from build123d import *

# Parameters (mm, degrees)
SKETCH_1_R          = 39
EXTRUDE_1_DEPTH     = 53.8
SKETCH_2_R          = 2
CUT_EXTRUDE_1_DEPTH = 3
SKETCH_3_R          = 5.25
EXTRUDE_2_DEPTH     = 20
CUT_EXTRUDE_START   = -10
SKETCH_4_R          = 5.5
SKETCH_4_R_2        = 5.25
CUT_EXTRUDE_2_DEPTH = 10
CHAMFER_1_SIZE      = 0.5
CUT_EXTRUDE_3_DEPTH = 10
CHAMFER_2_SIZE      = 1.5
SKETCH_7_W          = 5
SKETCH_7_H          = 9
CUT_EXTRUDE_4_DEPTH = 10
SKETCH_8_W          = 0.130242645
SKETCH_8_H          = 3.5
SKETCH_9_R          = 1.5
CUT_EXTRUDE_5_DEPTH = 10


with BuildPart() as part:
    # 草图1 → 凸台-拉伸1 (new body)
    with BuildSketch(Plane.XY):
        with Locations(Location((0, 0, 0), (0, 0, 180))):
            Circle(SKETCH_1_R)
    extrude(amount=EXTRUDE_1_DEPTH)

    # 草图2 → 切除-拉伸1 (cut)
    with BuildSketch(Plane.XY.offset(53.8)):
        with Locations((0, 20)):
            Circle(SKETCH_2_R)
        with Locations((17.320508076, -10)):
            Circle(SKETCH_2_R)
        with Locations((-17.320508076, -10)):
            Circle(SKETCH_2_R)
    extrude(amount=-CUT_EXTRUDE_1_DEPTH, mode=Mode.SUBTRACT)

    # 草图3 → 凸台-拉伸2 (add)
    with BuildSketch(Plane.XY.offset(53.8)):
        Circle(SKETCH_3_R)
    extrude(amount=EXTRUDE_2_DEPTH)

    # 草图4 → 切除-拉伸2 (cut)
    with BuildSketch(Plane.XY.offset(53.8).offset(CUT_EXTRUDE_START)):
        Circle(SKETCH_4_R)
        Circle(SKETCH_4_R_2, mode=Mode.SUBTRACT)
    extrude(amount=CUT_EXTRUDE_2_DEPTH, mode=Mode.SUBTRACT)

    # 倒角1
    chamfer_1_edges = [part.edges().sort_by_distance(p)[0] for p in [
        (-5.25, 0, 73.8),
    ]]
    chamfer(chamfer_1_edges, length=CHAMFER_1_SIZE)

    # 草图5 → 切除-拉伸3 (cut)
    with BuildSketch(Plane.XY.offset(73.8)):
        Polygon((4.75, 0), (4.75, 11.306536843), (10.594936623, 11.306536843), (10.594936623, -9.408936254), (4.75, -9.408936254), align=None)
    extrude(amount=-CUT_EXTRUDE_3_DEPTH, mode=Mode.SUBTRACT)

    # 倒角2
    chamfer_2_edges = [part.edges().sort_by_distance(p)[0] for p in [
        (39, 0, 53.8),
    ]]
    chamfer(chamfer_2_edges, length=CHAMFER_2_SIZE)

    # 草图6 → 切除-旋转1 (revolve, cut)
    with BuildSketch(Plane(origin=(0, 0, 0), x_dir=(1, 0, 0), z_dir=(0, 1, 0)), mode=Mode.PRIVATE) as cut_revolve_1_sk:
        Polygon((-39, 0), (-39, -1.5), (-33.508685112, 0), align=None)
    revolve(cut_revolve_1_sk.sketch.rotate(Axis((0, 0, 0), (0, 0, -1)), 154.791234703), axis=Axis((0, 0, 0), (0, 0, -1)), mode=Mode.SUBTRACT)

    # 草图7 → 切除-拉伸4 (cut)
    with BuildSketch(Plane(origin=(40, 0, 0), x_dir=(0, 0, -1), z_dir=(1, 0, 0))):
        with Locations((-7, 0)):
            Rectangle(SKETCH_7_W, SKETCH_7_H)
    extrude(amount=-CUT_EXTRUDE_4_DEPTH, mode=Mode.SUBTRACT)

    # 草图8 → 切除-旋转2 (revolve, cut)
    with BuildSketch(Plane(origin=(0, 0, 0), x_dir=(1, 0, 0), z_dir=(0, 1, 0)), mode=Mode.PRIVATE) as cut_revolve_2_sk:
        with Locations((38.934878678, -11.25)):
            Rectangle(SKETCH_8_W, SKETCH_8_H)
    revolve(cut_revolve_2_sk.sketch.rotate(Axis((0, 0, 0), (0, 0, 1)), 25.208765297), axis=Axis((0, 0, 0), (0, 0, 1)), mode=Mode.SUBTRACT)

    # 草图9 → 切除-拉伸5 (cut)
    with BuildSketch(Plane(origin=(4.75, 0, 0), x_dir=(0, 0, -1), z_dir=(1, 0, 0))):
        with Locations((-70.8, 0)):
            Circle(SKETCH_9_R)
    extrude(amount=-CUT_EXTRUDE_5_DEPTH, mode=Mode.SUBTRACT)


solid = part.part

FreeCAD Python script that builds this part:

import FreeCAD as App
import Part
import Sketcher


def edges_at(feature, points):
    """Names of the edges that pass closest to the given points."""
    edges = feature.Shape.Edges
    near = lambda p: min(range(len(edges)), key=lambda i: edges[i].distToShape(Part.Vertex(*p))[0])
    return sorted({f"Edge{near(p) + 1}" for p in points})


def add_polygon(sketch, points):
    """Adds a closed chain of lines whose ends are joined by coincident constraints."""
    first, n = sketch.GeometryCount, len(points)
    for a, b in zip(points, points[1:] + points[:1]):
        sketch.addGeometry(Part.LineSegment(App.Vector(*a, 0), App.Vector(*b, 0)), False)
    for i in range(n):
        sketch.addConstraint(Sketcher.Constraint("Coincident", first + i, 2, first + (i + 1) % n, 1))

doc = App.newDocument("Part")
body = doc.addObject("PartDesign::Body", "Body")

# Sketch on XY plane
sketch1 = doc.addObject("Sketcher::SketchObject", "Sketch")
body.addObject(sketch1)
sketch1.AttachmentSupport = (doc.XY_Plane, [""])
sketch1.MapMode = "FlatFace"
sketch1.addGeometry(Part.Circle(App.Vector(0, 0, 0), App.Vector(0, 0, 1), 39), False)
sketch1.addConstraint(Sketcher.Constraint("Coincident", 0, 3, -1, 1))
sketch1.addConstraint(Sketcher.Constraint("Diameter", 0, 78.0))
pad1 = doc.addObject("PartDesign::Pad", "Pad")
body.addObject(pad1)
pad1.Profile = sketch1
pad1.Length = 53.8

# Sketch on XY plane
sketch2 = doc.addObject("Sketcher::SketchObject", "Sketch001")
body.addObject(sketch2)
sketch2.AttachmentSupport = (doc.XY_Plane, [""])
sketch2.MapMode = "FlatFace"
sketch2.AttachmentOffset = App.Placement(App.Vector(0, 0, 53.8), App.Rotation())
sketch2.addGeometry(Part.Circle(App.Vector(0, 20, 0), App.Vector(0, 0, 1), 2), False)
sketch2.addGeometry(Part.Circle(App.Vector(17.3, -10, 0), App.Vector(0, 0, 1), 2), False)
sketch2.addGeometry(Part.Circle(App.Vector(-17.3, -10, 0), App.Vector(0, 0, 1), 2), False)
sketch2.addConstraint(Sketcher.Constraint("Equal", 0, 1))
sketch2.addConstraint(Sketcher.Constraint("Equal", 1, 2))
sketch2.addConstraint(Sketcher.Constraint("Symmetric", 1, 3, 2, 3, -2))
sketch2.addConstraint(Sketcher.Constraint("PointOnObject", 0, 3, -2))
sketch2.addConstraint(Sketcher.Constraint("Diameter", 0, 4.0))
sketch2.addConstraint(Sketcher.Constraint("DistanceY", -1, 1, 0, 3, 20.0))
sketch2.addConstraint(Sketcher.Constraint("DistanceY", 1, 3, -1, 1, 10.0))
sketch2.addConstraint(Sketcher.Constraint("DistanceX", -1, 1, 1, 3, 17.320508))
pocket1 = doc.addObject("PartDesign::Pocket", "Pocket")
body.addObject(pocket1)
pocket1.Profile = sketch2
pocket1.Length = 3

# Sketch on XY plane
sketch3 = doc.addObject("Sketcher::SketchObject", "Sketch002")
body.addObject(sketch3)
sketch3.AttachmentSupport = (doc.XY_Plane, [""])
sketch3.MapMode = "FlatFace"
sketch3.AttachmentOffset = App.Placement(App.Vector(0, 0, 53.8), App.Rotation())
sketch3.addGeometry(Part.Circle(App.Vector(0, 0, 0), App.Vector(0, 0, 1), 5), False)
sketch3.addConstraint(Sketcher.Constraint("Coincident", 0, 3, -1, 1))
sketch3.addConstraint(Sketcher.Constraint("Diameter", 0, 10.5))
pad2 = doc.addObject("PartDesign::Pad", "Pad001")
body.addObject(pad2)
pad2.Profile = sketch3
pad2.Length = 20

# Sketch on XY plane
sketch4 = doc.addObject("Sketcher::SketchObject", "Sketch003")
body.addObject(sketch4)
sketch4.AttachmentSupport = (doc.XY_Plane, [""])
sketch4.MapMode = "FlatFace"
sketch4.AttachmentOffset = App.Placement(App.Vector(0, 0, 43.8), App.Rotation())
sketch4.addGeometry(Part.Circle(App.Vector(0, 0, 0), App.Vector(0, 0, 1), 6), False)
sketch4.addGeometry(Part.Circle(App.Vector(0, 0, 0), App.Vector(0, 0, 1), 5), False)
sketch4.addConstraint(Sketcher.Constraint("Coincident", 0, 3, -1, 1))
sketch4.addConstraint(Sketcher.Constraint("Coincident", 1, 3, -1, 1))
sketch4.addConstraint(Sketcher.Constraint("Diameter", 0, 11.0))
sketch4.addConstraint(Sketcher.Constraint("Diameter", 1, 10.5))
pocket2 = doc.addObject("PartDesign::Pocket", "Pocket001")
body.addObject(pocket2)
pocket2.Profile = sketch4
pocket2.Length = 10
pocket2.Reversed = True
doc.recompute()

chamfer = doc.addObject("PartDesign::Chamfer", "Chamfer")
body.addObject(chamfer)
chamfer.Base = (pocket2, edges_at(pocket2, [(-5.25, 0, 73.8)]))
chamfer.Size = 0.5

# Sketch on XY plane
sketch5 = doc.addObject("Sketcher::SketchObject", "Sketch004")
body.addObject(sketch5)
sketch5.AttachmentSupport = (doc.XY_Plane, [""])
sketch5.MapMode = "FlatFace"
sketch5.AttachmentOffset = App.Placement(App.Vector(0, 0, 73.8), App.Rotation())
add_polygon(sketch5, [(5, 11), (5, -9), (11, -9), (11, 11)])  # lines 0-3
sketch5.addConstraint(Sketcher.Constraint("Vertical", 0))
sketch5.addConstraint(Sketcher.Constraint("Horizontal", 1))
sketch5.addConstraint(Sketcher.Constraint("Vertical", 2))
sketch5.addConstraint(Sketcher.Constraint("Horizontal", 3))
sketch5.addConstraint(Sketcher.Constraint("DistanceX", -1, 1, 0, 2, 4.75))
sketch5.addConstraint(Sketcher.Constraint("DistanceX", 1, 1, 1, 2, 5.844937))
sketch5.addConstraint(Sketcher.Constraint("DistanceY", 0, 2, 0, 1, 20.715473))
sketch5.addConstraint(Sketcher.Constraint("DistanceY", 0, 2, -1, 1, 9.408936))
pocket3 = doc.addObject("PartDesign::Pocket", "Pocket002")
body.addObject(pocket3)
pocket3.Profile = sketch5
pocket3.Length = 10
doc.recompute()

chamfer2 = doc.addObject("PartDesign::Chamfer", "Chamfer001")
body.addObject(chamfer2)
chamfer2.Base = (pocket3, edges_at(pocket3, [(39, 0, 53.8)]))
chamfer2.Size = 1.5

# Sketch on XZ plane
sketch6 = doc.addObject("Sketcher::SketchObject", "Sketch005")
body.addObject(sketch6)
sketch6.AttachmentSupport = (doc.XZ_Plane, [""])
sketch6.MapMode = "FlatFace"
add_polygon(sketch6, [(-39, 0), (-39, 1.5), (-33.5, 0)])  # lines 0-2
sketch6.addConstraint(Sketcher.Constraint("Vertical", 0))
sketch6.addConstraint(Sketcher.Constraint("Horizontal", 2))
sketch6.addConstraint(Sketcher.Constraint("PointOnObject", 1, 2, -1))
sketch6.addConstraint(Sketcher.Constraint("DistanceY", 0, 1, 0, 2, 1.5))
sketch6.addConstraint(Sketcher.Constraint("DistanceX", 0, 2, -1, 1, 39.0))
sketch6.addConstraint(Sketcher.Constraint("Distance", 1, 5.692499))
groove = doc.addObject("PartDesign::Groove", "Groove")
body.addObject(groove)
groove.Profile = sketch6
groove.ReferenceAxis = (sketch6, ["V_Axis"])
groove.Angle = 360

# Sketch on YZ plane
sketch7 = doc.addObject("Sketcher::SketchObject", "Sketch006")
body.addObject(sketch7)
sketch7.AttachmentSupport = (doc.YZ_Plane, [""])
sketch7.MapMode = "FlatFace"
sketch7.AttachmentOffset = App.Placement(App.Vector(0, 0, 40), App.Rotation())
add_polygon(sketch7, [(4, 10), (-4, 10), (-4, 4), (4, 4)])  # lines 0-3
sketch7.addConstraint(Sketcher.Constraint("Horizontal", 0))
sketch7.addConstraint(Sketcher.Constraint("Vertical", 1))
sketch7.addConstraint(Sketcher.Constraint("Horizontal", 2))
sketch7.addConstraint(Sketcher.Constraint("Vertical", 3))
sketch7.addConstraint(Sketcher.Constraint("DistanceX", 0, 2, 0, 1, 9.0))
sketch7.addConstraint(Sketcher.Constraint("DistanceY", 1, 2, 1, 1, 5.0))
sketch7.addConstraint(Sketcher.Constraint("DistanceX", 0, 2, -1, 1, 4.5))
sketch7.addConstraint(Sketcher.Constraint("DistanceY", -1, 1, 0, 2, 9.5))
pocket4 = doc.addObject("PartDesign::Pocket", "Pocket003")
body.addObject(pocket4)
pocket4.Profile = sketch7
pocket4.Length = 10

# Sketch on XZ plane
sketch8 = doc.addObject("Sketcher::SketchObject", "Sketch007")
body.addObject(sketch8)
sketch8.AttachmentSupport = (doc.XZ_Plane, [""])
sketch8.MapMode = "FlatFace"
add_polygon(sketch8, [(38.87, 9.5), (38.87, 13), (39, 13), (39, 9.5)])  # lines 0-3
sketch8.addConstraint(Sketcher.Constraint("Vertical", 0))
sketch8.addConstraint(Sketcher.Constraint("Horizontal", 1))
sketch8.addConstraint(Sketcher.Constraint("Vertical", 2))
sketch8.addConstraint(Sketcher.Constraint("Horizontal", 3))
sketch8.addConstraint(Sketcher.Constraint("DistanceY", 0, 1, 0, 2, 3.5))
sketch8.addConstraint(Sketcher.Constraint("DistanceY", -1, 1, 0, 2, 13.0))
sketch8.addConstraint(Sketcher.Constraint("DistanceX", -1, 1, 1, 2, 39.0))
sketch8.addConstraint(Sketcher.Constraint("DistanceX", 1, 1, 1, 2, 0.130243))
groove2 = doc.addObject("PartDesign::Groove", "Groove001")
body.addObject(groove2)
groove2.Profile = sketch8
groove2.ReferenceAxis = (sketch8, ["V_Axis"])
groove2.Angle = 360

# Sketch on YZ plane
sketch9 = doc.addObject("Sketcher::SketchObject", "Sketch008")
body.addObject(sketch9)
sketch9.AttachmentSupport = (doc.YZ_Plane, [""])
sketch9.MapMode = "FlatFace"
sketch9.AttachmentOffset = App.Placement(App.Vector(0, 0, 4.75), App.Rotation())
sketch9.addGeometry(Part.Circle(App.Vector(0, 70.8, 0), App.Vector(0, 0, 1), 1.5), False)
sketch9.addConstraint(Sketcher.Constraint("PointOnObject", 0, 3, -2))
sketch9.addConstraint(Sketcher.Constraint("Diameter", 0, 3.0))
sketch9.addConstraint(Sketcher.Constraint("DistanceY", -1, 1, 0, 3, 70.8))
pocket5 = doc.addObject("PartDesign::Pocket", "Pocket004")
body.addObject(pocket5)
pocket5.Profile = sketch9
pocket5.Length = 10

doc.recompute()
